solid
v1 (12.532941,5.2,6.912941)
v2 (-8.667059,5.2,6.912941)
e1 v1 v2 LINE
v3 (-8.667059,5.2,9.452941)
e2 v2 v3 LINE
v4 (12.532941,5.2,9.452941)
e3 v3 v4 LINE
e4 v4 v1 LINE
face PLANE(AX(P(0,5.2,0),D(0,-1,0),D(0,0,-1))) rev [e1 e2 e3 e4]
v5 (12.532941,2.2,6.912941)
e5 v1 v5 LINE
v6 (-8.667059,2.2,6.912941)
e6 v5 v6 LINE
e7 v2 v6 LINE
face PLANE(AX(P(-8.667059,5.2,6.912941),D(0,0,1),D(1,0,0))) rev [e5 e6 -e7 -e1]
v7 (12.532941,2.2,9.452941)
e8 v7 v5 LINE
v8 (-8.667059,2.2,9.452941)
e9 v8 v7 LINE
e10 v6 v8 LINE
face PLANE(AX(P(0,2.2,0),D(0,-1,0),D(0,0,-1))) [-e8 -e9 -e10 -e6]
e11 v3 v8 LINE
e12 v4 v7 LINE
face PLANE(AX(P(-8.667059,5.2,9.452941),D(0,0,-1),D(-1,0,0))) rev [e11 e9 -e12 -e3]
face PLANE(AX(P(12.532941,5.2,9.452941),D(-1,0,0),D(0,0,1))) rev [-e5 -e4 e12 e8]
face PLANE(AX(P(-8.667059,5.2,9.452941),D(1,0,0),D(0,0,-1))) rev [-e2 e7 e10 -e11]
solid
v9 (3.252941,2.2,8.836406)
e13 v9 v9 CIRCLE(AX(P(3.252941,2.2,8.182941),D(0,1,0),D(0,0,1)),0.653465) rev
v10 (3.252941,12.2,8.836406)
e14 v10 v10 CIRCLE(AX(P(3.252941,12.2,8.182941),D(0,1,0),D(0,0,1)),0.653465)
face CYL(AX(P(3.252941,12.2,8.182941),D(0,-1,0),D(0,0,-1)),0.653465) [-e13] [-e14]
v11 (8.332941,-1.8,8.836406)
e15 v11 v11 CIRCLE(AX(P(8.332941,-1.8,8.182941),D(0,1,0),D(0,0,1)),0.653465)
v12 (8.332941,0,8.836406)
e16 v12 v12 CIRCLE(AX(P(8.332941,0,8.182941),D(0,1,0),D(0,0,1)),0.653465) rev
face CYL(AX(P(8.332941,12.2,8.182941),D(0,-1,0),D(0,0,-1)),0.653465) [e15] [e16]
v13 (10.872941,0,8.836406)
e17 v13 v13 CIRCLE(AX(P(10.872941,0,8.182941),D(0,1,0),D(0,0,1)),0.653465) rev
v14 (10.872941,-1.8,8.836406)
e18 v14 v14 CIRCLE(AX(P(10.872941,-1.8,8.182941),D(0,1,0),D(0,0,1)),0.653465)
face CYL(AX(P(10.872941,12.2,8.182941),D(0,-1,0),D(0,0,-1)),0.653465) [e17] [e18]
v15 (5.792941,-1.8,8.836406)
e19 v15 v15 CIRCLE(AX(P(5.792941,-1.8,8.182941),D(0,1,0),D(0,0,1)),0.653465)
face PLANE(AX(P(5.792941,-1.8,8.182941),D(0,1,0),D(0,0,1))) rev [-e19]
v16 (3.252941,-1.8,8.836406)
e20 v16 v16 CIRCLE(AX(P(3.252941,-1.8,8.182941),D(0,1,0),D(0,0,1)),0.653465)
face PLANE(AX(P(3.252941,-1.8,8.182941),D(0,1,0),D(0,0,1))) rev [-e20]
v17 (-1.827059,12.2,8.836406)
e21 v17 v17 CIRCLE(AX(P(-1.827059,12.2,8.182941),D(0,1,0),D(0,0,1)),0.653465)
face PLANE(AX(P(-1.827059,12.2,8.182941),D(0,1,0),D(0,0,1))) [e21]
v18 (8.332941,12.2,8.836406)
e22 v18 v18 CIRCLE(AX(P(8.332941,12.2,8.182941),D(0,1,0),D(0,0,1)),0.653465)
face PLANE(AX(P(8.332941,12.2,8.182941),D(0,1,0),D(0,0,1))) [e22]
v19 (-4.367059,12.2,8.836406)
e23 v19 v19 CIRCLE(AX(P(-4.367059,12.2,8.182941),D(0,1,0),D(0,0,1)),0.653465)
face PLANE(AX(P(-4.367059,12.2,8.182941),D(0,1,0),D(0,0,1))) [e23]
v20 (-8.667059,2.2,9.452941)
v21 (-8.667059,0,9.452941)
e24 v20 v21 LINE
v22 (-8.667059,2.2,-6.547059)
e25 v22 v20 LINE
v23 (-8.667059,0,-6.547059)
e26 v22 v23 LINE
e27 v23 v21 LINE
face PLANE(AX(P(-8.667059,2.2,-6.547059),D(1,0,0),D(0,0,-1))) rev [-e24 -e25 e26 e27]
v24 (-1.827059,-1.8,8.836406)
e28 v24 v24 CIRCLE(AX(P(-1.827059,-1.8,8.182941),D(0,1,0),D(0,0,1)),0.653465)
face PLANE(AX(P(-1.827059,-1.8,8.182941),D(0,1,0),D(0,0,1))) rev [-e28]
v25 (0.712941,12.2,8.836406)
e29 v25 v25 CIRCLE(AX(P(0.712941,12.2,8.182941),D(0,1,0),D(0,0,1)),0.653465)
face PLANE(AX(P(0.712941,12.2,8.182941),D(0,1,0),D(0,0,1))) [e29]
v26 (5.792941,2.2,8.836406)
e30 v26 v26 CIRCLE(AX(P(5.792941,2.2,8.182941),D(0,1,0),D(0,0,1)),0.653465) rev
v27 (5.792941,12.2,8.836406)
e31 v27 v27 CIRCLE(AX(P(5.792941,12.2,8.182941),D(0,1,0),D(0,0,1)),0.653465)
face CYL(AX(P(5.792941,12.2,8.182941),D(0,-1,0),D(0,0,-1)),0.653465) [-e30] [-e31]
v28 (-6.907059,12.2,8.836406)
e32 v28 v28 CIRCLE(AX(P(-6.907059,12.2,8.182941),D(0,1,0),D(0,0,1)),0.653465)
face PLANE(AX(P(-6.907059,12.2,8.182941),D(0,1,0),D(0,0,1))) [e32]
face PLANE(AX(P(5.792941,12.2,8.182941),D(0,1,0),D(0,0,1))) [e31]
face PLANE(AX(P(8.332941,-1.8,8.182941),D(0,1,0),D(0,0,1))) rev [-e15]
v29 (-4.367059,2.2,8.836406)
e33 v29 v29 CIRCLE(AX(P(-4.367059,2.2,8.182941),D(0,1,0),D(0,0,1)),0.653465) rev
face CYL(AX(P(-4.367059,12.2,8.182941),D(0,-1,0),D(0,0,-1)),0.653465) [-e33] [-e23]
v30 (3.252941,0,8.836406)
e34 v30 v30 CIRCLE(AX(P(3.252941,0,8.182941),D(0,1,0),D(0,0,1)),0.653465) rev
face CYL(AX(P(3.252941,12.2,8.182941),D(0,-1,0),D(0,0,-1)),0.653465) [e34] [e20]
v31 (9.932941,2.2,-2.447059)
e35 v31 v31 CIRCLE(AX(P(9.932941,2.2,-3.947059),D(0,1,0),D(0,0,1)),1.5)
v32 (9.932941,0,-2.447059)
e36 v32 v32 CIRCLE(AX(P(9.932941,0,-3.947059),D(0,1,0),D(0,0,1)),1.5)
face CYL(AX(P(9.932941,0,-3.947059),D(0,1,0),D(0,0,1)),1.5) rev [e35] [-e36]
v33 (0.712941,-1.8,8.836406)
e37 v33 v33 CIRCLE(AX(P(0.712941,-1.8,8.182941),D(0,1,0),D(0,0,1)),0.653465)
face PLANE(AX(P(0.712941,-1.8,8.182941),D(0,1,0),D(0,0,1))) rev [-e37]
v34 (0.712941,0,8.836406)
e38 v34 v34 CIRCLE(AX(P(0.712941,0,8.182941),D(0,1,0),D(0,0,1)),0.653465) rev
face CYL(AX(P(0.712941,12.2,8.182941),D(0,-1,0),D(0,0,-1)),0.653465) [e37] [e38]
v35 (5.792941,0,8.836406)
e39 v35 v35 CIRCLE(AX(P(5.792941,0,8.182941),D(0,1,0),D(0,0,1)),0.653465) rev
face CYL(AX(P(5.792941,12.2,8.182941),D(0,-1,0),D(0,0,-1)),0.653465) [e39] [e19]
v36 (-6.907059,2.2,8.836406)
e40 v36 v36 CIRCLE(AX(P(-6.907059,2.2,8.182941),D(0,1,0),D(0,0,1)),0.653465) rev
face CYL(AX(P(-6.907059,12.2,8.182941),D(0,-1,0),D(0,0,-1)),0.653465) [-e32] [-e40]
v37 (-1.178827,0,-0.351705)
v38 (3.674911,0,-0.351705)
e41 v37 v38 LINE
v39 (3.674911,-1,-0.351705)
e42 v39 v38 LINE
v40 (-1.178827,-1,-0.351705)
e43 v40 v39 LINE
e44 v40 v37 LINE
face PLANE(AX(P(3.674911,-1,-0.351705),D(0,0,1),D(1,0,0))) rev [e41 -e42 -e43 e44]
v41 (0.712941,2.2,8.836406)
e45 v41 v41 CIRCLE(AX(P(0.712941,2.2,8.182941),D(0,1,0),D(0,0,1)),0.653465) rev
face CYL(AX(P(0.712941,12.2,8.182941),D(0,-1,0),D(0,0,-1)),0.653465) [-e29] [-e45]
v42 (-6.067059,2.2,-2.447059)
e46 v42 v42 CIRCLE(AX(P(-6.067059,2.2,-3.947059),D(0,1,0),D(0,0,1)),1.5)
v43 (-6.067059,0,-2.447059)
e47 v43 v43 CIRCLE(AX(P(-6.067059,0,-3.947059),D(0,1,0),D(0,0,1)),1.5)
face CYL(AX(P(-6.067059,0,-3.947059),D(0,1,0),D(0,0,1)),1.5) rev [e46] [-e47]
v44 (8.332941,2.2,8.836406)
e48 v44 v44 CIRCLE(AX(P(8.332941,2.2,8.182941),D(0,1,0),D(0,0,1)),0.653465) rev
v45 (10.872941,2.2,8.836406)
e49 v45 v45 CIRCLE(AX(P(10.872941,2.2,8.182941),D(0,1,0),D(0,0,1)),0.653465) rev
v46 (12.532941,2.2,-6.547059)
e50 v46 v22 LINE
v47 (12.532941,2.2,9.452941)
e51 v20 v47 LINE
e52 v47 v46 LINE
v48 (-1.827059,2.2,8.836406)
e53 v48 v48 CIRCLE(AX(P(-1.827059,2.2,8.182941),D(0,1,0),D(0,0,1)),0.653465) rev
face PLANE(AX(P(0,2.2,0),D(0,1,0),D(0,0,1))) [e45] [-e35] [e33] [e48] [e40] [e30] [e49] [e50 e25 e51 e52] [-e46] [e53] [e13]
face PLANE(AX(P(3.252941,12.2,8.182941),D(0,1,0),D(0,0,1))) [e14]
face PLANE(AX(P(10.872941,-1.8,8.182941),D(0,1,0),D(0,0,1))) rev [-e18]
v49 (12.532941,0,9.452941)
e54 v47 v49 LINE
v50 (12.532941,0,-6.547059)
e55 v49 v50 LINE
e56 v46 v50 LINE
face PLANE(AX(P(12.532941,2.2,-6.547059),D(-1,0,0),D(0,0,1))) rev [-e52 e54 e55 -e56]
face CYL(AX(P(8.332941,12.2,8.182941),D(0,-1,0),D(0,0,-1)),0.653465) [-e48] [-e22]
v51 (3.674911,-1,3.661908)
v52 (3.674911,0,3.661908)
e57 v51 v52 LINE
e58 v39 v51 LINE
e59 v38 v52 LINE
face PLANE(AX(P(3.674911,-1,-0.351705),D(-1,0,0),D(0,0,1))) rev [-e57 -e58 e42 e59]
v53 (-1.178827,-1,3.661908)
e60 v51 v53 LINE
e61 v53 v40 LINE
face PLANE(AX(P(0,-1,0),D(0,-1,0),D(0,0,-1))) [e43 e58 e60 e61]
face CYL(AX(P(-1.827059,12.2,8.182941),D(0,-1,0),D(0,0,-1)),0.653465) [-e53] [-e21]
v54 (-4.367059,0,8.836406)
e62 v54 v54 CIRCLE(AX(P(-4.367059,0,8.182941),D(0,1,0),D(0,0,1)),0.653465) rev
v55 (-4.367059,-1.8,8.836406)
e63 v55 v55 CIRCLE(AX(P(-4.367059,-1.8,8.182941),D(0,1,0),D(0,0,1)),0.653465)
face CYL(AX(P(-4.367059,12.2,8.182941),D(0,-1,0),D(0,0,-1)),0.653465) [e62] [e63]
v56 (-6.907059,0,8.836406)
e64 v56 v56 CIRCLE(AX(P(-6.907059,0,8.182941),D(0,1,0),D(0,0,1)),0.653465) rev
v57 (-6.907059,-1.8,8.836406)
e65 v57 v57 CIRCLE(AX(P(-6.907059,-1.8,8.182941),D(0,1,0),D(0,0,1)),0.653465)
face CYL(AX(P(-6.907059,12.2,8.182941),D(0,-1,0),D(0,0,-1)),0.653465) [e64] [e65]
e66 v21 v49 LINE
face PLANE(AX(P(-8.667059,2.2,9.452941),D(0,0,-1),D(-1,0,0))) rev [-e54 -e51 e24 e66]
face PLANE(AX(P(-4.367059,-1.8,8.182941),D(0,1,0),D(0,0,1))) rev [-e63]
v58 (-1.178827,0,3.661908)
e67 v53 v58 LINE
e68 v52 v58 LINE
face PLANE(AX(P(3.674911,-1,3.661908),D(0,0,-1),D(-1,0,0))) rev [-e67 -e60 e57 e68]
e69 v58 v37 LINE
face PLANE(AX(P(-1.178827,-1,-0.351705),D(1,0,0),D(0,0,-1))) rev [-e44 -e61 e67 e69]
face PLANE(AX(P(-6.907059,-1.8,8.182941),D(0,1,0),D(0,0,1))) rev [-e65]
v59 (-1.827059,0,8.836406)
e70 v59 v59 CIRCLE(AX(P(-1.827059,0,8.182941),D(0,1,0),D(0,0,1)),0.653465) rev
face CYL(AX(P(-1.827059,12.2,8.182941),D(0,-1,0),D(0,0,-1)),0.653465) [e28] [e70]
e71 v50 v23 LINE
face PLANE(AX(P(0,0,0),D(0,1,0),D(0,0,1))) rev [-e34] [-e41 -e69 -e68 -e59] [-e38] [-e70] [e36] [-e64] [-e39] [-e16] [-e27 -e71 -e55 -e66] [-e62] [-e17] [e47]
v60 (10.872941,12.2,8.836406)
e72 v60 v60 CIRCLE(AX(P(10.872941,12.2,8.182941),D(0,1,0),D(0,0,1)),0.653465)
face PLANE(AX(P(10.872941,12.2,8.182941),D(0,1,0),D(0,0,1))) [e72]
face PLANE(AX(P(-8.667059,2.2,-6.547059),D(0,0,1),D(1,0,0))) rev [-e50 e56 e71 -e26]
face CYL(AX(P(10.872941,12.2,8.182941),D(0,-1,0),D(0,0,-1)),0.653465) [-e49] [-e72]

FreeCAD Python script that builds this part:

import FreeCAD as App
import Part
import Sketcher

V = App.Vector

doc = App.newDocument("Part")
body = doc.addObject("PartDesign::Body", "Body")

# Sketch on XZ plane
sketch1 = body.newObject("Sketcher::SketchObject", "Sketch")
sketch1.AttachmentSupport = (doc.getObject("XZ_Plane"), [""])
sketch1.MapMode = "FlatFace"
sketch1.addGeometry([
    Part.LineSegment(V(-9, -7, 0), V(-9, 9, 0)),
    Part.LineSegment(V(-9, 9, 0), V(13, 9, 0)),
    Part.LineSegment(V(13, 9, 0), V(13, -7, 0)),
    Part.LineSegment(V(13, -7, 0), V(-9, -7, 0)),
], False)
sketch1.addConstraint([
    Sketcher.Constraint("Coincident", 0, 2, 1, 1),
    Sketcher.Constraint("Coincident", 1, 2, 2, 1),
    Sketcher.Constraint("Coincident", 2, 2, 3, 1),
    Sketcher.Constraint("Coincident", 3, 2, 0, 1),
    Sketcher.Constraint("Vertical", 0),
    Sketcher.Constraint("Horizontal", 1),
    Sketcher.Constraint("Vertical", 2),
    Sketcher.Constraint("Horizontal", 3),
    Sketcher.Constraint("DistanceY", 0, 1, 0, 2, 16.0),
    Sketcher.Constraint("DistanceX", 1, 1, 1, 2, 21.2),
    Sketcher.Constraint("DistanceX", 0, 2, -1, 1, 8.667059),
    Sketcher.Constraint("DistanceY", -1, 1, 0, 2, 9.452941),
])
pad1 = body.newObject("PartDesign::Pad", "Pad")
pad1.Profile = sketch1
pad1.Length = 2.2
pad1.Reversed = True

# Sketch on XZ plane
sketch2 = body.newObject("Sketcher::SketchObject", "Sketch001")
sketch2.AttachmentSupport = (doc.getObject("XZ_Plane"), [""])
sketch2.MapMode = "FlatFace"
sketch2.AttachmentOffset = App.Placement(V(0, 0, -2.2), App.Rotation())
sketch2.addGeometry([
    Part.Circle(V(-6.1, -3.9, 0), V(0, 0, 1), 1.5),
    Part.Circle(V(9.9, -3.9, 0), V(0, 0, 1), 1.5),
], False)
sketch2.addConstraint([
    Sketcher.Constraint("Equal", 0, 1),
    Sketcher.Constraint("Horizontal", 0, 3, 1, 3),
    Sketcher.Constraint("Diameter", 0, 3.0),
    Sketcher.Constraint("DistanceX", 0, 3, 1, 3, 16.0),
    Sketcher.Constraint("DistanceX", 0, 3, -1, 1, 6.067059),
    Sketcher.Constraint("DistanceY", 0, 3, -1, 1, 3.947059),
])
pocket1 = body.newObject("PartDesign::Pocket", "Pocket")
pocket1.Profile = sketch2
pocket1.Length = 2.2
pocket1.Reversed = True

# Sketch on XZ plane
sketch3 = body.newObject("Sketcher::SketchObject", "Sketch002")
sketch3.AttachmentSupport = (doc.getObject("XZ_Plane"), [""])
sketch3.MapMode = "FlatFace"
sketch3.AttachmentOffset = App.Placement(V(0, 0, -2.2), App.Rotation())
sketch3.addGeometry([
    Part.Circle(V(-6.9, 8.2, 0), V(0, 0, 1), 0.7),  # 0
    Part.Circle(V(-4.4, 8.2, 0), V(0, 0, 1), 0.7),  # 1
    Part.Circle(V(-1.8, 8.2, 0), V(0, 0, 1), 0.7),  # 2
    Part.Circle(V(0.7, 8.2, 0), V(0, 0, 1), 0.7),  # 3
    Part.Circle(V(3.3, 8.2, 0), V(0, 0, 1), 0.7),  # 4
    Part.Circle(V(5.8, 8.2, 0), V(0, 0, 1), 0.7),  # 5
    Part.Circle(V(8.3, 8.2, 0), V(0, 0, 1), 0.7),  # 6
    Part.Circle(V(10.9, 8.2, 0), V(0, 0, 1), 0.7),  # 7
], False)
sketch3.addConstraint([
    Sketcher.Constraint("Equal", 0, 1),
    Sketcher.Constraint("Equal", 1, 2),
    Sketcher.Constraint("Equal", 2, 3),
    Sketcher.Constraint("Equal", 3, 4),
    Sketcher.Constraint("Equal", 4, 5),
    Sketcher.Constraint("Equal", 5, 6),
    Sketcher.Constraint("Equal", 6, 7),
    Sketcher.Constraint("Horizontal", 0, 3, 1, 3),
    Sketcher.Constraint("Horizontal", 1, 3, 2, 3),
    Sketcher.Constraint("Horizontal", 2, 3, 3, 3),
    Sketcher.Constraint("Horizontal", 3, 3, 4, 3),
    Sketcher.Constraint("Horizontal", 4, 3, 5, 3),
    Sketcher.Constraint("Horizontal", 5, 3, 6, 3),
    Sketcher.Constraint("Horizontal", 6, 3, 7, 3),
    Sketcher.Constraint("DistanceX", 0, 3, 5, 3, 12.7),
    Sketcher.Constraint("DistanceX", 1, 3, 6, 3, 12.7),
    Sketcher.Constraint("DistanceX", 2, 3, 7, 3, 12.7),
    Sketcher.Constraint("Diameter", 0, 1.306929),
    Sketcher.Constraint("DistanceX", 0, 3, 1, 3, 2.54),
    Sketcher.Constraint("DistanceX", 1, 3, 2, 3, 2.54),
    Sketcher.Constraint("DistanceX", 2, 3, 3, 3, 2.54),
    Sketcher.Constraint("DistanceX", 3, 3, 4, 3, 2.54),
    Sketcher.Constraint("DistanceX", 0, 3, -1, 1, 6.907059),
    Sketcher.Constraint("DistanceY", -1, 1, 0, 3, 8.182941),
])
pad2 = body.newObject("PartDesign::Pad", "Pad001")
pad2.Profile = sketch3
pad2.Type = "TwoLengths"
pad2.Length = 10
pad2.Length2 = 4
pad2.Reversed = True

# Sketch on XZ plane
sketch4 = body.newObject("Sketcher::SketchObject", "Sketch003")
sketch4.AttachmentSupport = (doc.getObject("XZ_Plane"), [""])
sketch4.MapMode = "FlatFace"
sketch4.addGeometry([
    Part.LineSegment(V(-1.2, 3.7, 0), V(-1.2, -0.4, 0)),
    Part.LineSegment(V(-1.2, -0.4, 0), V(3.7, -0.4, 0)),
    Part.LineSegment(V(3.7, -0.4, 0), V(3.7, 3.7, 0)),
    Part.LineSegment(V(3.7, 3.7, 0), V(-1.2, 3.7, 0)),
], False)
sketch4.addConstraint([
    Sketcher.Constraint("Coincident", 0, 2, 1, 1),
    Sketcher.Constraint("Coincident", 1, 2, 2, 1),
    Sketcher.Constraint("Coincident", 2, 2, 3, 1),
    Sketcher.Constraint("Coincident", 3, 2, 0, 1),
    Sketcher.Constraint("Vertical", 0),
    Sketcher.Constraint("Horizontal", 1),
    Sketcher.Constraint("Vertical", 2),
    Sketcher.Constraint("Horizontal", 3),
    Sketcher.Constraint("DistanceX", 1, 1, 1, 2, 4.853739),
    Sketcher.Constraint("DistanceY", 0, 2, 0, 1, 4.013613),
    Sketcher.Constraint("DistanceX", -1, 1, 1, 2, 3.674911),
    Sketcher.Constraint("DistanceY", 0, 2, -1, 1, 0.351705),
])
pad3 = body.newObject("PartDesign::Pad", "Pad002")
pad3.Profile = sketch4
pad3.Length = 1
body2 = doc.addObject("PartDesign::Body", "Body001")

# Sketch on XZ plane
sketch5 = body2.newObject("Sketcher::SketchObject", "Sketch004")
sketch5.AttachmentSupport = (doc.getObject("XZ_Plane001"), [""])
sketch5.MapMode = "FlatFace"
sketch5.AttachmentOffset = App.Placement(V(0, 0, -2.2), App.Rotation())
sketch5.addGeometry([
    Part.LineSegment(V(-8.7, 6.9, 0), V(-8.7, 9.5, 0)),
    Part.LineSegment(V(-8.7, 9.5, 0), V(12.5, 9.5, 0)),
    Part.LineSegment(V(12.5, 9.5, 0), V(12.5, 6.9, 0)),
    Part.LineSegment(V(12.5, 6.9, 0), V(-8.7, 6.9, 0)),
], False)
sketch5.addConstraint([
    Sketcher.Constraint("Coincident", 0, 2, 1, 1),
    Sketcher.Constraint("Coincident", 1, 2, 2, 1),
    Sketcher.Constraint("Coincident", 2, 2, 3, 1),
    Sketcher.Constraint("Coincident", 3, 2, 0, 1),
    Sketcher.Constraint("Vertical", 0),
    Sketcher.Constraint("Horizontal", 1),
    Sketcher.Constraint("Vertical", 2),
    Sketcher.Constraint("Horizontal", 3),
    Sketcher.Constraint("DistanceX", 1, 1, 1, 2, 21.2),
    Sketcher.Constraint("DistanceY", 0, 1, 0, 2, 2.54),
    Sketcher.Constraint("DistanceX", 0, 2, -1, 1, 8.667059),
    Sketcher.Constraint("DistanceY", -1, 1, 0, 2, 9.452941),
])
pad4 = body2.newObject("PartDesign::Pad", "Pad003")
pad4.Profile = sketch5
pad4.Length = 3
pad4.Reversed = True

doc.recompute()
